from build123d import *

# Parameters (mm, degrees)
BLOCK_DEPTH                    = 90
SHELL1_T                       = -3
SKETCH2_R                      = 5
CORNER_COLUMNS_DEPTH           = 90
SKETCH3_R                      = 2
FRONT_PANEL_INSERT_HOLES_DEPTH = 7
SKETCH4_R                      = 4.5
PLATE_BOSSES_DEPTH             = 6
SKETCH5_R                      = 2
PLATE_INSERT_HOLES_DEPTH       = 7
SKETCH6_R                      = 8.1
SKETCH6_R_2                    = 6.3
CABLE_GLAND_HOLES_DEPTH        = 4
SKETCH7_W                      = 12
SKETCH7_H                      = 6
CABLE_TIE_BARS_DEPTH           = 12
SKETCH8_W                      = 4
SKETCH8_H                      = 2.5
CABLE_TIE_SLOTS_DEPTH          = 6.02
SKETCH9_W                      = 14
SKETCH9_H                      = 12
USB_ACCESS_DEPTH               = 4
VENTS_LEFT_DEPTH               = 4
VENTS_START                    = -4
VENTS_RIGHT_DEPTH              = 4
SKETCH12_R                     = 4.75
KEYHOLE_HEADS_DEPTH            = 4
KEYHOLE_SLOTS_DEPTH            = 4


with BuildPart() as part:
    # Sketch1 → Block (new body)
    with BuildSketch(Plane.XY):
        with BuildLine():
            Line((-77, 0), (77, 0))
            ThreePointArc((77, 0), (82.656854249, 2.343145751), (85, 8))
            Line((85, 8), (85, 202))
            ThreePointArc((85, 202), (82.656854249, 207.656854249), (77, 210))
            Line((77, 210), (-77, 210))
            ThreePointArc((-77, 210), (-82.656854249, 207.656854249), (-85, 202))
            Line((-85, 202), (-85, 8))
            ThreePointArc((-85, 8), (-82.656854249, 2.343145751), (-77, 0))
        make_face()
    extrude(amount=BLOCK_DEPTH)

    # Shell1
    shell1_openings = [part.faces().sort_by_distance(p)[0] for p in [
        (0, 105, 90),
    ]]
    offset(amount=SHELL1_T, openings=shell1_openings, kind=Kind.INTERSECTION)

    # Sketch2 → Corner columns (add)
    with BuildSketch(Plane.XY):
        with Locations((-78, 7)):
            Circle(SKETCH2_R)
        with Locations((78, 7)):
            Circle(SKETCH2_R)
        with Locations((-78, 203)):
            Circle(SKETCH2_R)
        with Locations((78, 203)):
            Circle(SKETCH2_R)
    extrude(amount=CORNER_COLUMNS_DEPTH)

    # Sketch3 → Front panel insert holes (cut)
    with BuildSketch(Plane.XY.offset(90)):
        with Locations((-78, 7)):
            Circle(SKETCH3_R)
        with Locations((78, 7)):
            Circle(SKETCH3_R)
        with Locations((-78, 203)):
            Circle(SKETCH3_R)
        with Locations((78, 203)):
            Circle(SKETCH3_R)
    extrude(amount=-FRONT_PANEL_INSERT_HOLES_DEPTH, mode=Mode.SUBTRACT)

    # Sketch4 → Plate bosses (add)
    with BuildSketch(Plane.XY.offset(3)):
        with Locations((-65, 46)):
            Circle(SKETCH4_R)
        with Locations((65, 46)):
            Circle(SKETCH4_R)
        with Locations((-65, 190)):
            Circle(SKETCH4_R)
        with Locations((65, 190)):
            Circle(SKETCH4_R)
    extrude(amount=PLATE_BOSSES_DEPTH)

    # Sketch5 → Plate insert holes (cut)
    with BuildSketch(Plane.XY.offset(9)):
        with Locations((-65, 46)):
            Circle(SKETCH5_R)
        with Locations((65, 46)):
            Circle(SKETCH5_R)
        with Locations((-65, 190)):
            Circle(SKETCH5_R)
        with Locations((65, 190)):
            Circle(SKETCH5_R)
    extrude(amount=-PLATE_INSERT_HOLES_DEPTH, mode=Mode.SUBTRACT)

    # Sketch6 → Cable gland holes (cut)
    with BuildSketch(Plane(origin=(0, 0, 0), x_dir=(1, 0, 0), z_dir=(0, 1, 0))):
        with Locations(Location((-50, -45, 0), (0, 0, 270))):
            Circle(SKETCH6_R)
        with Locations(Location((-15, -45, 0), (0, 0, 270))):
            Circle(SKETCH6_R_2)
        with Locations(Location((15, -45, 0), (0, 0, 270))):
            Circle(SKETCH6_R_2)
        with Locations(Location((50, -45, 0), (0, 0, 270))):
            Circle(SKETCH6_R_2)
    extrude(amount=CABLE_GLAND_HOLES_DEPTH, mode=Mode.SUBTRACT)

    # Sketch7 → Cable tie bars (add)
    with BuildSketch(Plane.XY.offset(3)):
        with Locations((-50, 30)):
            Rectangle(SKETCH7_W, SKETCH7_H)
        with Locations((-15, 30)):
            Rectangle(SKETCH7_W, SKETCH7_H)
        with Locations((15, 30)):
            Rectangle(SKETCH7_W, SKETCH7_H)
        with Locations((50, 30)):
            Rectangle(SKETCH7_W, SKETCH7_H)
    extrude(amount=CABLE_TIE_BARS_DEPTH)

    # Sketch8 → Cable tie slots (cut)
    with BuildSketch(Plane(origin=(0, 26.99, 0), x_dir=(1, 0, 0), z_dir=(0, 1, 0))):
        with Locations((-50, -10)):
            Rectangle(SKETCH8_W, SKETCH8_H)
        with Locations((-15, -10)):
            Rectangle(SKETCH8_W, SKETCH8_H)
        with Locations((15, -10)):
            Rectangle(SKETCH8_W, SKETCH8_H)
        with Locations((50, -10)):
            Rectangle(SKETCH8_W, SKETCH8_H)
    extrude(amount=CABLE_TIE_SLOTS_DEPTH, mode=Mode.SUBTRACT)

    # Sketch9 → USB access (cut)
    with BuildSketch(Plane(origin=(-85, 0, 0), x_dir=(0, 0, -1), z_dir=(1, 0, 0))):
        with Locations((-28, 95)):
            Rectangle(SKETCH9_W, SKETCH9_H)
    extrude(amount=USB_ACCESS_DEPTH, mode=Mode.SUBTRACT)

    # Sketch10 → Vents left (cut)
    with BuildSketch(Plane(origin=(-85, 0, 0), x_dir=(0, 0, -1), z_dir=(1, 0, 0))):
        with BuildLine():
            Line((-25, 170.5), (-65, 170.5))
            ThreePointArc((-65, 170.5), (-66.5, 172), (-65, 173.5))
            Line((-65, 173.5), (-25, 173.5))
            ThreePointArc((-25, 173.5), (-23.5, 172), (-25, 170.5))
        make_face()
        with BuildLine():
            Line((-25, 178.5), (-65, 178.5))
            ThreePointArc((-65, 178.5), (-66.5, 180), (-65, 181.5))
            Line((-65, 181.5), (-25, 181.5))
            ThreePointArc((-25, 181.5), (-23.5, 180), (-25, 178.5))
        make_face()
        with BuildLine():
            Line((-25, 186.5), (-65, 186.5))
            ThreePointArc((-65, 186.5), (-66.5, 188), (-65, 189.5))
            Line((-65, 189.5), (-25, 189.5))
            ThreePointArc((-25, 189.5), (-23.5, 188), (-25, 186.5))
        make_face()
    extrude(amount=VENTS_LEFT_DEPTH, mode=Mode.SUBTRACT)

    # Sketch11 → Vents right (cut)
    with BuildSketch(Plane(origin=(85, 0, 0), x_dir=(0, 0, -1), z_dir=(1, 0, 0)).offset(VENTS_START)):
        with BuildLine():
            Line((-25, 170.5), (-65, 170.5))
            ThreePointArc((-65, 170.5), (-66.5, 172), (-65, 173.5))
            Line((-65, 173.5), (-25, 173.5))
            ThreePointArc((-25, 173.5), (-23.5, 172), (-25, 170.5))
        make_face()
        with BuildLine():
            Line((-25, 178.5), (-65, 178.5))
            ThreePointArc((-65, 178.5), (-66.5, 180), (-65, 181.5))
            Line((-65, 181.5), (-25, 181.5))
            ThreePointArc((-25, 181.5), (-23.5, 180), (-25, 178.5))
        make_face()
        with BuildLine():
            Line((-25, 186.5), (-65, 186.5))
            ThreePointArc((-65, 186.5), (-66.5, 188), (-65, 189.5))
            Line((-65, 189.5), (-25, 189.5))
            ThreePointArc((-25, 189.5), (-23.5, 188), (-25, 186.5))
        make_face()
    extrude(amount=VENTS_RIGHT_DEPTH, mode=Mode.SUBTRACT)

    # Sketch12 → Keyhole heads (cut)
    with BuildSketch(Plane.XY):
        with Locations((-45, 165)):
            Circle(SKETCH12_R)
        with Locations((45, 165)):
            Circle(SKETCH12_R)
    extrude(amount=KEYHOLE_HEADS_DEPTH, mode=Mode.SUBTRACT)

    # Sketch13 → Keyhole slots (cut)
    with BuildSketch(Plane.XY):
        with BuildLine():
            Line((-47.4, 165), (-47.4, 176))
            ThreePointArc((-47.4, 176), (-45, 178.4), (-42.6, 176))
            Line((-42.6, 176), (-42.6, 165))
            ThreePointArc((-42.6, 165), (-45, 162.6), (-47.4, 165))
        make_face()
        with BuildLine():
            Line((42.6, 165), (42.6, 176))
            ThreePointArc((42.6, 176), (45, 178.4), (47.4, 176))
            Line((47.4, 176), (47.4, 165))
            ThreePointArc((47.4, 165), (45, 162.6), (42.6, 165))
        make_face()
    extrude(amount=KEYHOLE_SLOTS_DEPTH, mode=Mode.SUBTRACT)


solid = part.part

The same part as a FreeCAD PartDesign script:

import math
import FreeCAD as App
import Part
import Sketcher
from FreeCAD import Vector


def faces_at(feature, points):
    """Names of the faces that lie closest to the given points."""
    faces = feature.Shape.Faces
    near = lambda p: min(range(len(faces)), key=lambda i: faces[i].distToShape(Part.Vertex(*p))[0])
    return sorted({f"Face{near(p) + 1}" for p in points})

doc = App.newDocument("Part")
body = doc.addObject("PartDesign::Body", "Body")

sketch1 = body.newObject("Sketcher::SketchObject", "Sketch")
sketch1.AttachmentSupport = (doc.getObject("XY_Plane"), [""])
sketch1.MapMode = "FlatFace"
sketch1.addGeometry([
    Part.LineSegment(Vector(-77, 0, 0), Vector(77, 0, 0)),
    Part.ArcOfCircle(Part.Circle(Vector(77, 8, 0), Vector(0, 0, 1), 8), math.radians(-90), math.radians(0)),
    Part.LineSegment(Vector(85, 8, 0), Vector(85, 202, 0)),
    Part.ArcOfCircle(Part.Circle(Vector(77, 202, 0), Vector(0, 0, 1), 8), math.radians(0), math.radians(90)),
    Part.LineSegment(Vector(77, 210, 0), Vector(-77, 210, 0)),
    Part.ArcOfCircle(Part.Circle(Vector(-77, 202, 0), Vector(0, 0, 1), 8), math.radians(90), math.radians(180)),
    Part.LineSegment(Vector(-85, 202, 0), Vector(-85, 8, 0)),
    Part.ArcOfCircle(Part.Circle(Vector(-77, 8, 0), Vector(0, 0, 1), 8), math.radians(-180), math.radians(-90)),
], False)
sketch1.addConstraint([
    Sketcher.Constraint("Tangent", 0, 2, 1, 1),
    Sketcher.Constraint("Tangent", 1, 2, 2, 1),
    Sketcher.Constraint("Tangent", 2, 2, 3, 1),
    Sketcher.Constraint("Tangent", 3, 2, 4, 1),
    Sketcher.Constraint("Tangent", 4, 2, 5, 1),
    Sketcher.Constraint("Tangent", 5, 2, 6, 1),
    Sketcher.Constraint("Tangent", 6, 2, 7, 1),
    Sketcher.Constraint("Tangent", 7, 2, 0, 1),
    Sketcher.Constraint("Horizontal", 0),
    Sketcher.Constraint("Vertical", 2),
    Sketcher.Constraint("Horizontal", 4),
    Sketcher.Constraint("Vertical", 6),
    Sketcher.Constraint("Equal", 1, 3),
    Sketcher.Constraint("Equal", 3, 5),
    Sketcher.Constraint("Equal", 5, 7),
    Sketcher.Constraint("Symmetric", 0, 2, 7, 2, -1, 1),
    Sketcher.Constraint("Radius", 1, 8.0),
    Sketcher.Constraint("DistanceX", 0, 1, 0, 2, 154.0),
    Sketcher.Constraint("DistanceY", 2, 1, 2, 2, 194.0),
])
pad1 = body.newObject("PartDesign::Pad", "Pad")
pad1.Profile = sketch1
pad1.Length = 90
doc.recompute()

thickness = body.newObject("PartDesign::Thickness", "Thickness")
thickness.Base = (pad1, faces_at(pad1, [(0, 105, 90)]))
thickness.Value = 3
thickness.Reversed = True
thickness.Join = "Intersection"

sketch2 = body.newObject("Sketcher::SketchObject", "Sketch001")
sketch2.AttachmentSupport = (doc.getObject("XY_Plane"), [""])
sketch2.MapMode = "FlatFace"
sketch2.addGeometry([
    Part.Circle(Vector(-78, 7, 0), Vector(0, 0, 1), 5),
    Part.Circle(Vector(78, 7, 0), Vector(0, 0, 1), 5),
    Part.Circle(Vector(-78, 203, 0), Vector(0, 0, 1), 5),
    Part.Circle(Vector(78, 203, 0), Vector(0, 0, 1), 5),
], False)
sketch2.addConstraint([
    Sketcher.Constraint("Equal", 0, 1),
    Sketcher.Constraint("Equal", 1, 2),
    Sketcher.Constraint("Equal", 2, 3),
    Sketcher.Constraint("Symmetric", 0, 3, 1, 3, -2),
    Sketcher.Constraint("Symmetric", 2, 3, 3, 3, -2),
    Sketcher.Constraint("Vertical", 0, 3, 2, 3),
    Sketcher.Constraint("Diameter", 0, 10.0),
    Sketcher.Constraint("DistanceX", 0, 3, -1, 1, 78.0),
    Sketcher.Constraint("DistanceY", -1, 1, 0, 3, 7.0),
    Sketcher.Constraint("DistanceY", -1, 1, 2, 3, 203.0),
])
pad2 = body.newObject("PartDesign::Pad", "Pad001")
pad2.Profile = sketch2
pad2.Length = 90

sketch3 = body.newObject("Sketcher::SketchObject", "Sketch002")
sketch3.AttachmentSupport = (doc.getObject("XY_Plane"), [""])
sketch3.MapMode = "FlatFace"
sketch3.AttachmentOffset = App.Placement(Vector(0, 0, 90), App.Rotation())
sketch3.addGeometry([
    Part.Circle(Vector(-78, 7, 0), Vector(0, 0, 1), 2),
    Part.Circle(Vector(78, 7, 0), Vector(0, 0, 1), 2),
    Part.Circle(Vector(-78, 203, 0), Vector(0, 0, 1), 2),
    Part.Circle(Vector(78, 203, 0), Vector(0, 0, 1), 2),
], False)
sketch3.addConstraint([
    Sketcher.Constraint("Equal", 0, 1),
    Sketcher.Constraint("Equal", 1, 2),
    Sketcher.Constraint("Equal", 2, 3),
    Sketcher.Constraint("Symmetric", 0, 3, 1, 3, -2),
    Sketcher.Constraint("Symmetric", 2, 3, 3, 3, -2),
    Sketcher.Constraint("Vertical", 0, 3, 2, 3),
    Sketcher.Constraint("Diameter", 0, 4.0),
    Sketcher.Constraint("DistanceX", 0, 3, -1, 1, 78.0),
    Sketcher.Constraint("DistanceY", -1, 1, 0, 3, 7.0),
    Sketcher.Constraint("DistanceY", -1, 1, 2, 3, 203.0),
])
pocket1 = body.newObject("PartDesign::Pocket", "Pocket")
pocket1.Profile = sketch3
pocket1.Length = 7

sketch4 = body.newObject("Sketcher::SketchObject", "Sketch003")
sketch4.AttachmentSupport = (doc.getObject("XY_Plane"), [""])
sketch4.MapMode = "FlatFace"
sketch4.AttachmentOffset = App.Placement(Vector(0, 0, 3), App.Rotation())
sketch4.addGeometry([
    Part.Circle(Vector(-65, 46, 0), Vector(0, 0, 1), 4.5),
    Part.Circle(Vector(65, 46, 0), Vector(0, 0, 1), 4.5),
    Part.Circle(Vector(-65, 190, 0), Vector(0, 0, 1), 4.5),
    Part.Circle(Vector(65, 190, 0), Vector(0, 0, 1), 4.5),
], False)
sketch4.addConstraint([
    Sketcher.Constraint("Equal", 0, 1),
    Sketcher.Constraint("Equal", 1, 2),
    Sketcher.Constraint("Equal", 2, 3),
    Sketcher.Constraint("Symmetric", 0, 3, 1, 3, -2),
    Sketcher.Constraint("Symmetric", 2, 3, 3, 3, -2),
    Sketcher.Constraint("Vertical", 0, 3, 2, 3),
    Sketcher.Constraint("Diameter", 0, 9.0),
    Sketcher.Constraint("DistanceX", 0, 3, -1, 1, 65.0),
    Sketcher.Constraint("DistanceY", -1, 1, 0, 3, 46.0),
    Sketcher.Constraint("DistanceY", -1, 1, 2, 3, 190.0),
])
pad3 = body.newObject("PartDesign::Pad", "Pad002")
pad3.Profile = sketch4
pad3.Length = 6

sketch5 = body.newObject("Sketcher::SketchObject", "Sketch004")
sketch5.AttachmentSupport = (doc.getObject("XY_Plane"), [""])
sketch5.MapMode = "FlatFace"
sketch5.AttachmentOffset = App.Placement(Vector(0, 0, 9), App.Rotation())
sketch5.addGeometry([
    Part.Circle(Vector(-65, 46, 0), Vector(0, 0, 1), 2),
    Part.Circle(Vector(65, 46, 0), Vector(0, 0, 1), 2),
    Part.Circle(Vector(-65, 190, 0), Vector(0, 0, 1), 2),
    Part.Circle(Vector(65, 190, 0), Vector(0, 0, 1), 2),
], False)
sketch5.addConstraint([
    Sketcher.Constraint("Equal", 0, 1),
    Sketcher.Constraint("Equal", 1, 2),
    Sketcher.Constraint("Equal", 2, 3),
    Sketcher.Constraint("Symmetric", 0, 3, 1, 3, -2),
    Sketcher.Constraint("Symmetric", 2, 3, 3, 3, -2),
    Sketcher.Constraint("Vertical", 0, 3, 2, 3),
    Sketcher.Constraint("Diameter", 0, 4.0),
    Sketcher.Constraint("DistanceX", 0, 3, -1, 1, 65.0),
    Sketcher.Constraint("DistanceY", -1, 1, 0, 3, 46.0),
    Sketcher.Constraint("DistanceY", -1, 1, 2, 3, 190.0),
])
pocket2 = body.newObject("PartDesign::Pocket", "Pocket001")
pocket2.Profile = sketch5
pocket2.Length = 7

sketch6 = body.newObject("Sketcher::SketchObject", "Sketch005")
sketch6.AttachmentSupport = (doc.getObject("XZ_Plane"), [""])
sketch6.MapMode = "FlatFace"
sketch6.addGeometry([
    Part.Circle(Vector(-50, 45, 0), Vector(0, 0, 1), 8),
    Part.Circle(Vector(-15, 45, 0), Vector(0, 0, 1), 6),
    Part.Circle(Vector(15, 45, 0), Vector(0, 0, 1), 6),
    Part.Circle(Vector(50, 45, 0), Vector(0, 0, 1), 6),
], False)
sketch6.addConstraint([
    Sketcher.Constraint("Equal", 1, 2),
    Sketcher.Constraint("Equal", 2, 3),
    Sketcher.Constraint("Symmetric", 1, 3, 2, 3, -2),
    Sketcher.Constraint("Symmetric", 0, 3, 3, 3, -2),
    Sketcher.Constraint("Horizontal", 0, 3, 1, 3),
    Sketcher.Constraint("Diameter", 0, 16.2),
    Sketcher.Constraint("Diameter", 1, 12.6),
    Sketcher.Constraint("DistanceX", 0, 3, -1, 1, 50.0),
    Sketcher.Constraint("DistanceY", -1, 1, 0, 3, 45.0),
    Sketcher.Constraint("DistanceX", 1, 3, -1, 1, 15.0),
])
pocket3 = body.newObject("PartDesign::Pocket", "Pocket002")
pocket3.Profile = sketch6
pocket3.Length = 4

sketch7 = body.newObject("Sketcher::SketchObject", "Sketch006")
sketch7.AttachmentSupport = (doc.getObject("XY_Plane"), [""])
sketch7.MapMode = "FlatFace"
sketch7.AttachmentOffset = App.Placement(Vector(0, 0, 3), App.Rotation())
sketch7.addGeometry([
    Part.LineSegment(Vector(-56, 33, 0), Vector(-56, 27, 0)),
    Part.LineSegment(Vector(-56, 27, 0), Vector(-44, 27, 0)),
    Part.LineSegment(Vector(-44, 27, 0), Vector(-44, 33, 0)),
    Part.LineSegment(Vector(-44, 33, 0), Vector(-56, 33, 0)),
    Part.LineSegment(Vector(-21, 33, 0), Vector(-21, 27, 0)),
    Part.LineSegment(Vector(-21, 27, 0), Vector(-9, 27, 0)),
    Part.LineSegment(Vector(-9, 27, 0), Vector(-9, 33, 0)),
    Part.LineSegment(Vector(-9, 33, 0), Vector(-21, 33, 0)),
    Part.LineSegment(Vector(9, 33, 0), Vector(9, 27, 0)),
    Part.LineSegment(Vector(9, 27, 0), Vector(21, 27, 0)),
    Part.LineSegment(Vector(21, 27, 0), Vector(21, 33, 0)),
    Part.LineSegment(Vector(21, 33, 0), Vector(9, 33, 0)),
    Part.LineSegment(Vector(44, 33, 0), Vector(44, 27, 0)),
    Part.LineSegment(Vector(44, 27, 0), Vector(56, 27, 0)),
    Part.LineSegment(Vector(56, 27, 0), Vector(56, 33, 0)),
    Part.LineSegment(Vector(56, 33, 0), Vector(44, 33, 0)),
], False)
sketch7.addConstraint([
    Sketcher.Constraint("Coincident", 0, 2, 1, 1),
    Sketcher.Constraint("Coincident", 1, 2, 2, 1),
    Sketcher.Constraint("Coincident", 2, 2, 3, 1),
    Sketcher.Constraint("Coincident", 3, 2, 0, 1),
    Sketcher.Constraint("Coincident", 4, 2, 5, 1),
    Sketcher.Constraint("Coincident", 5, 2, 6, 1),
    Sketcher.Constraint("Coincident", 6, 2, 7, 1),
    Sketcher.Constraint("Coincident", 7, 2, 4, 1),
    Sketcher.Constraint("Coincident", 8, 2, 9, 1),
    Sketcher.Constraint("Coincident", 9, 2, 10, 1),
    Sketcher.Constraint("Coincident", 10, 2, 11, 1),
    Sketcher.Constraint("Coincident", 11, 2, 8, 1),
    Sketcher.Constraint("Coincident", 12, 2, 13, 1),
    Sketcher.Constraint("Coincident", 13, 2, 14, 1),
    Sketcher.Constraint("Coincident", 14, 2, 15, 1),
    Sketcher.Constraint("Coincident", 15, 2, 12, 1),
    Sketcher.Constraint("Vertical", 0),
    Sketcher.Constraint("Horizontal", 1),
    Sketcher.Constraint("Vertical", 2),
    Sketcher.Constraint("Horizontal", 3),
    Sketcher.Constraint("Vertical", 4),
    Sketcher.Constraint("Horizontal", 5),
    Sketcher.Constraint("Vertical", 6),
    Sketcher.Constraint("Horizontal", 7),
    Sketcher.Constraint("Vertical", 8),
    Sketcher.Constraint("Horizontal", 9),
    Sketcher.Constraint("Vertical", 10),
    Sketcher.Constraint("Horizontal", 11),
    Sketcher.Constraint("Vertical", 12),
    Sketcher.Constraint("Horizontal", 13),
    Sketcher.Constraint("Vertical", 14),
    Sketcher.Constraint("Horizontal", 15),
    Sketcher.Constraint("Symmetric", 5, 2, 8, 2, -2),
    Sketcher.Constraint("Symmetric", 7, 2, 10, 2, -2),
    Sketcher.Constraint("Symmetric", 1, 2, 12, 2, -2),
    Sketcher.Constraint("Symmetric", 3, 2, 14, 2, -2),
    Sketcher.Constraint("Horizontal", 1, 2, 4, 2),
    Sketcher.Constraint("Horizontal", 3, 2, 6, 2),
    Sketcher.Constraint("Equal", 3, 5),
    Sketcher.Constraint("DistanceX", 1, 1, 1, 2, 12.0),
    Sketcher.Constraint("DistanceY", 0, 2, 0, 1, 6.0),
    Sketcher.Constraint("DistanceX", 0, 2, -1, 1, 56.0),
    Sketcher.Constraint("DistanceY", -1, 1, 0, 2, 27.0),
    Sketcher.Constraint("DistanceX", 4, 2, -1, 1, 21.0),
])
pad4 = body.newObject("PartDesign::Pad", "Pad003")
pad4.Profile = sketch7
pad4.Length = 12

sketch8 = body.newObject("Sketcher::SketchObject", "Sketch007")
sketch8.AttachmentSupport = (doc.getObject("XZ_Plane"), [""])
sketch8.MapMode = "FlatFace"
sketch8.AttachmentOffset = App.Placement(Vector(0, 0, -26.99), App.Rotation())
sketch8.addGeometry([
    Part.LineSegment(Vector(-52, 8.8, 0), Vector(-52, 11.2, 0)),
    Part.LineSegment(Vector(-52, 11.2, 0), Vector(-48, 11.2, 0)),
    Part.LineSegment(Vector(-48, 11.2, 0), Vector(-48, 8.8, 0)),
    Part.LineSegment(Vector(-48, 8.8, 0), Vector(-52, 8.8, 0)),
    Part.LineSegment(Vector(-17, 8.8, 0), Vector(-17, 11.2, 0)),
    Part.LineSegment(Vector(-17, 11.2, 0), Vector(-13, 11.2, 0)),
    Part.LineSegment(Vector(-13, 11.2, 0), Vector(-13, 8.8, 0)),
    Part.LineSegment(Vector(-13, 8.8, 0), Vector(-17, 8.8, 0)),
    Part.LineSegment(Vector(13, 8.8, 0), Vector(13, 11.2, 0)),
    Part.LineSegment(Vector(13, 11.2, 0), Vector(17, 11.2, 0)),
    Part.LineSegment(Vector(17, 11.2, 0), Vector(17, 8.8, 0)),
    Part.LineSegment(Vector(17, 8.8, 0), Vector(13, 8.8, 0)),
    Part.LineSegment(Vector(48, 8.8, 0), Vector(48, 11.2, 0)),
    Part.LineSegment(Vector(48, 11.2, 0), Vector(52, 11.2, 0)),
    Part.LineSegment(Vector(52, 11.2, 0), Vector(52, 8.8, 0)),
    Part.LineSegment(Vector(52, 8.8, 0), Vector(48, 8.8, 0)),
], False)
sketch8.addConstraint([
    Sketcher.Constraint("Coincident", 0, 2, 1, 1),
    Sketcher.Constraint("Coincident", 1, 2, 2, 1),
    Sketcher.Constraint("Coincident", 2, 2, 3, 1),
    Sketcher.Constraint("Coincident", 3, 2, 0, 1),
    Sketcher.Constraint("Coincident", 4, 2, 5, 1),
    Sketcher.Constraint("Coincident", 5, 2, 6, 1),
    Sketcher.Constraint("Coincident", 6, 2, 7, 1),
    Sketcher.Constraint("Coincident", 7, 2, 4, 1),
    Sketcher.Constraint("Coincident", 8, 2, 9, 1),
    Sketcher.Constraint("Coincident", 9, 2, 10, 1),
    Sketcher.Constraint("Coincident", 10, 2, 11, 1),
    Sketcher.Constraint("Coincident", 11, 2, 8, 1),
    Sketcher.Constraint("Coincident", 12, 2, 13, 1),
    Sketcher.Constraint("Coincident", 13, 2, 14, 1),
    Sketcher.Constraint("Coincident", 14, 2, 15, 1),
    Sketcher.Constraint("Coincident", 15, 2, 12, 1),
    Sketcher.Constraint("Vertical", 0),
    Sketcher.Constraint("Horizontal", 1),
    Sketcher.Constraint("Vertical", 2),
    Sketcher.Constraint("Horizontal", 3),
    Sketcher.Constraint("Vertical", 4),
    Sketcher.Constraint("Horizontal", 5),
    Sketcher.Constraint("Vertical", 6),
    Sketcher.Constraint("Horizontal", 7),
    Sketcher.Constraint("Vertical", 8),
    Sketcher.Constraint("Horizontal", 9),
    Sketcher.Constraint("Vertical", 10),
    Sketcher.Constraint("Horizontal", 11),
    Sketcher.Constraint("Vertical", 12),
    Sketcher.Constraint("Horizontal", 13),
    Sketcher.Constraint("Vertical", 14),
    Sketcher.Constraint("Horizontal", 15),
    Sketcher.Constraint("Symmetric", 5, 2, 8, 2, -2),
    Sketcher.Constraint("Symmetric", 7, 2, 10, 2, -2),
    Sketcher.Constraint("Symmetric", 1, 2, 12, 2, -2),
    Sketcher.Constraint("Symmetric", 3, 2, 14, 2, -2),
    Sketcher.Constraint("Horizontal", 1, 2, 4, 2),
    Sketcher.Constraint("Horizontal", 3, 2, 6, 2),
    Sketcher.Constraint("Equal", 3, 5),
    Sketcher.Constraint("DistanceX", 1, 1, 1, 2, 4.0),
    Sketcher.Constraint("DistanceY", 0, 1, 0, 2, 2.5),
    Sketcher.Constraint("DistanceX", 0, 2, -1, 1, 52.0),
    Sketcher.Constraint("DistanceX", 4, 2, -1, 1, 17.0),
    Sketcher.Constraint("DistanceY", -1, 1, 0, 2, 11.25),
])
pocket4 = body.newObject("PartDesign::Pocket", "Pocket003")
pocket4.Profile = sketch8
pocket4.Length = 6.02

sketch9 = body.newObject("Sketcher::SketchObject", "Sketch008")
sketch9.AttachmentSupport = (doc.getObject("YZ_Plane"), [""])
sketch9.MapMode = "FlatFace"
sketch9.AttachmentOffset = App.Placement(Vector(0, 0, -85), App.Rotation())
sketch9.addGeometry([
    Part.LineSegment(Vector(101, 35, 0), Vector(89, 35, 0)),
    Part.LineSegment(Vector(89, 35, 0), Vector(89, 21, 0)),
    Part.LineSegment(Vector(89, 21, 0), Vector(101, 21, 0)),
    Part.LineSegment(Vector(101, 21, 0), Vector(101, 35, 0)),
], False)
sketch9.addConstraint([
    Sketcher.Constraint("Coincident", 0, 2, 1, 1),
    Sketcher.Constraint("Coincident", 1, 2, 2, 1),
    Sketcher.Constraint("Coincident", 2, 2, 3, 1),
    Sketcher.Constraint("Coincident", 3, 2, 0, 1),
    Sketcher.Constraint("Horizontal", 0),
    Sketcher.Constraint("Vertical", 1),
    Sketcher.Constraint("Horizontal", 2),
    Sketcher.Constraint("Vertical", 3),
    Sketcher.Constraint("DistanceX", 0, 2, 0, 1, 12.0),
    Sketcher.Constraint("DistanceY", 1, 2, 1, 1, 14.0),
    Sketcher.Constraint("DistanceX", -1, 1, 0, 2, 89.0),
    Sketcher.Constraint("DistanceY", -1, 1, 0, 2, 35.0),
])
pocket5 = body.newObject("PartDesign::Pocket", "Pocket004")
pocket5.Profile = sketch9
pocket5.Length = 4
pocket5.Reversed = True

sketch10 = body.newObject("Sketcher::SketchObject", "Sketch009")
sketch10.AttachmentSupport = (doc.getObject("YZ_Plane"), [""])
sketch10.MapMode = "FlatFace"
sketch10.AttachmentOffset = App.Placement(Vector(0, 0, -85), App.Rotation())
sketch10.addGeometry([
    Part.LineSegment(Vector(170.5, 65, 0), Vector(170.5, 25, 0)),
    Part.ArcOfCircle(Part.Circle(Vector(172, 25, 0), Vector(0, 0, 1), 1.5), math.radians(180), math.radians(360)),
    Part.LineSegment(Vector(173.5, 25, 0), Vector(173.5, 65, 0)),
    Part.ArcOfCircle(Part.Circle(Vector(172, 65, 0), Vector(0, 0, 1), 1.5), math.radians(0), math.radians(180)),
    Part.LineSegment(Vector(178.5, 65, 0), Vector(178.5, 25, 0)),
    Part.ArcOfCircle(Part.Circle(Vector(180, 25, 0), Vector(0, 0, 1), 1.5), math.radians(180), math.radians(360)),
    Part.LineSegment(Vector(181.5, 25, 0), Vector(181.5, 65, 0)),
    Part.ArcOfCircle(Part.Circle(Vector(180, 65, 0), Vector(0, 0, 1), 1.5), math.radians(0), math.radians(180)),
    Part.LineSegment(Vector(186.5, 65, 0), Vector(186.5, 25, 0)),
    Part.ArcOfCircle(Part.Circle(Vector(188, 25, 0), Vector(0, 0, 1), 1.5), math.radians(180), math.radians(360)),
    Part.LineSegment(Vector(189.5, 25, 0), Vector(189.5, 65, 0)),
    Part.ArcOfCircle(Part.Circle(Vector(188, 65, 0), Vector(0, 0, 1), 1.5), math.radians(0), math.radians(180)),
], False)
sketch10.addConstraint([
    Sketcher.Constraint("Tangent", 0, 2, 1, 1),
    Sketcher.Constraint("Tangent", 1, 2, 2, 1),
    Sketcher.Constraint("Tangent", 2, 2, 3, 1),
    Sketcher.Constraint("Tangent", 3, 2, 0, 1),
    Sketcher.Constraint("Tangent", 4, 2, 5, 1),
    Sketcher.Constraint("Tangent", 5, 2, 6, 1),
    Sketcher.Constraint("Tangent", 6, 2, 7, 1),
    Sketcher.Constraint("Tangent", 7, 2, 4, 1),
    Sketcher.Constraint("Tangent", 8, 2, 9, 1),
    Sketcher.Constraint("Tangent", 9, 2, 10, 1),
    Sketcher.Constraint("Tangent", 10, 2, 11, 1),
    Sketcher.Constraint("Tangent", 11, 2, 8, 1),
    Sketcher.Constraint("Vertical", 0),
    Sketcher.Constraint("Vertical", 2),
    Sketcher.Constraint("Vertical", 4),
    Sketcher.Constraint("Vertical", 6),
    Sketcher.Constraint("Vertical", 8),
    Sketcher.Constraint("Vertical", 10),
    Sketcher.Constraint("Equal", 3, 5),
    Sketcher.Constraint("Equal", 7, 9),
    Sketcher.Constraint("Horizontal", 1, 3, 5, 3),
    Sketcher.Constraint("Horizontal", 3, 3, 7, 3),
    Sketcher.Constraint("Horizontal", 5, 3, 9, 3),
    Sketcher.Constraint("Horizontal", 7, 3, 11, 3),
    Sketcher.Constraint("Radius", 1, 1.5),
    Sketcher.Constraint("DistanceY", 0, 2, 0, 1, 40.0),
    Sketcher.Constraint("DistanceX", -1, 1, 1, 3, 172.0),
    Sketcher.Constraint("DistanceY", -1, 1, 1, 3, 25.0),
    Sketcher.Constraint("DistanceX", -1, 1, 5, 3, 180.0),
    Sketcher.Constraint("DistanceX", -1, 1, 9, 3, 188.0),
])
pocket6 = body.newObject("PartDesign::Pocket", "Pocket005")
pocket6.Profile = sketch10
pocket6.Length = 4
pocket6.Reversed = True

sketch11 = body.newObject("Sketcher::SketchObject", "Sketch010")
sketch11.AttachmentSupport = (doc.getObject("YZ_Plane"), [""])
sketch11.MapMode = "FlatFace"
sketch11.AttachmentOffset = App.Placement(Vector(0, 0, 81), App.Rotation())
sketch11.addGeometry([
    Part.LineSegment(Vector(170.5, 65, 0), Vector(170.5, 25, 0)),
    Part.ArcOfCircle(Part.Circle(Vector(172, 25, 0), Vector(0, 0, 1), 1.5), math.radians(180), math.radians(360)),
    Part.LineSegment(Vector(173.5, 25, 0), Vector(173.5, 65, 0)),
    Part.ArcOfCircle(Part.Circle(Vector(172, 65, 0), Vector(0, 0, 1), 1.5), math.radians(0), math.radians(180)),
    Part.LineSegment(Vector(178.5, 65, 0), Vector(178.5, 25, 0)),
    Part.ArcOfCircle(Part.Circle(Vector(180, 25, 0), Vector(0, 0, 1), 1.5), math.radians(180), math.radians(360)),
    Part.LineSegment(Vector(181.5, 25, 0), Vector(181.5, 65, 0)),
    Part.ArcOfCircle(Part.Circle(Vector(180, 65, 0), Vector(0, 0, 1), 1.5), math.radians(0), math.radians(180)),
    Part.LineSegment(Vector(186.5, 65, 0), Vector(186.5, 25, 0)),
    Part.ArcOfCircle(Part.Circle(Vector(188, 25, 0), Vector(0, 0, 1), 1.5), math.radians(180), math.radians(360)),
    Part.LineSegment(Vector(189.5, 25, 0), Vector(189.5, 65, 0)),
    Part.ArcOfCircle(Part.Circle(Vector(188, 65, 0), Vector(0, 0, 1), 1.5), math.radians(0), math.radians(180)),
], False)
sketch11.addConstraint([
    Sketcher.Constraint("Tangent", 0, 2, 1, 1),
    Sketcher.Constraint("Tangent", 1, 2, 2, 1),
    Sketcher.Constraint("Tangent", 2, 2, 3, 1),
    Sketcher.Constraint("Tangent", 3, 2, 0, 1),
    Sketcher.Constraint("Tangent", 4, 2, 5, 1),
    Sketcher.Constraint("Tangent", 5, 2, 6, 1),
    Sketcher.Constraint("Tangent", 6, 2, 7, 1),
    Sketcher.Constraint("Tangent", 7, 2, 4, 1),
    Sketcher.Constraint("Tangent", 8, 2, 9, 1),
    Sketcher.Constraint("Tangent", 9, 2, 10, 1),
    Sketcher.Constraint("Tangent", 10, 2, 11, 1),
    Sketcher.Constraint("Tangent", 11, 2, 8, 1),
    Sketcher.Constraint("Vertical", 0),
    Sketcher.Constraint("Vertical", 2),
    Sketcher.Constraint("Vertical", 4),
    Sketcher.Constraint("Vertical", 6),
    Sketcher.Constraint("Vertical", 8),
    Sketcher.Constraint("Vertical", 10),
    Sketcher.Constraint("Equal", 3, 5),
    Sketcher.Constraint("Equal", 7, 9),
    Sketcher.Constraint("Horizontal", 1, 3, 5, 3),
    Sketcher.Constraint("Horizontal", 3, 3, 7, 3),
    Sketcher.Constraint("Horizontal", 5, 3, 9, 3),
    Sketcher.Constraint("Horizontal", 7, 3, 11, 3),
    Sketcher.Constraint("Radius", 1, 1.5),
    Sketcher.Constraint("DistanceY", 0, 2, 0, 1, 40.0),
    Sketcher.Constraint("DistanceX", -1, 1, 1, 3, 172.0),
    Sketcher.Constraint("DistanceY", -1, 1, 1, 3, 25.0),
    Sketcher.Constraint("DistanceX", -1, 1, 5, 3, 180.0),
    Sketcher.Constraint("DistanceX", -1, 1, 9, 3, 188.0),
])
pocket7 = body.newObject("PartDesign::Pocket", "Pocket006")
pocket7.Profile = sketch11
pocket7.Length = 4
pocket7.Reversed = True

sketch12 = body.newObject("Sketcher::SketchObject", "Sketch011")
sketch12.AttachmentSupport = (doc.getObject("XY_Plane"), [""])
sketch12.MapMode = "FlatFace"
sketch12.addGeometry([
    Part.Circle(Vector(-45, 165, 0), Vector(0, 0, 1), 4.8),
    Part.Circle(Vector(45, 165, 0), Vector(0, 0, 1), 4.8),
], False)
sketch12.addConstraint([
    Sketcher.Constraint("Equal", 0, 1),
    Sketcher.Constraint("Symmetric", 0, 3, 1, 3, -2),
    Sketcher.Constraint("Diameter", 0, 9.5),
    Sketcher.Constraint("DistanceX", 0, 3, -1, 1, 45.0),
    Sketcher.Constraint("DistanceY", -1, 1, 0, 3, 165.0),
])
pocket8 = body.newObject("PartDesign::Pocket", "Pocket007")
pocket8.Profile = sketch12
pocket8.Length = 4
pocket8.Reversed = True

sketch13 = body.newObject("Sketcher::SketchObject", "Sketch012")
sketch13.AttachmentSupport = (doc.getObject("XY_Plane"), [""])
sketch13.MapMode = "FlatFace"
sketch13.addGeometry([
    Part.LineSegment(Vector(-47.4, 176, 0), Vector(-47.4, 165, 0)),
    Part.ArcOfCircle(Part.Circle(Vector(-45, 165, 0), Vector(0, 0, 1), 2.4), math.radians(180), math.radians(360)),
    Part.LineSegment(Vector(-42.6, 165, 0), Vector(-42.6, 176, 0)),
    Part.ArcOfCircle(Part.Circle(Vector(-45, 176, 0), Vector(0, 0, 1), 2.4), math.radians(0), math.radians(180)),
    Part.LineSegment(Vector(42.6, 176, 0), Vector(42.6, 165, 0)),
    Part.ArcOfCircle(Part.Circle(Vector(45, 165, 0), Vector(0, 0, 1), 2.4), math.radians(180), math.radians(360)),
    Part.LineSegment(Vector(47.4, 165, 0), Vector(47.4, 176, 0)),
    Part.ArcOfCircle(Part.Circle(Vector(45, 176, 0), Vector(0, 0, 1), 2.4), math.radians(0), math.radians(180)),
], False)
sketch13.addConstraint([
    Sketcher.Constraint("Tangent", 0, 2, 1, 1),
    Sketcher.Constraint("Tangent", 1, 2, 2, 1),
    Sketcher.Constraint("Tangent", 2, 2, 3, 1),
    Sketcher.Constraint("Tangent", 3, 2, 0, 1),
    Sketcher.Constraint("Tangent", 4, 2, 5, 1),
    Sketcher.Constraint("Tangent", 5, 2, 6, 1),
    Sketcher.Constraint("Tangent", 6, 2, 7, 1),
    Sketcher.Constraint("Tangent", 7, 2, 4, 1),
    Sketcher.Constraint("Vertical", 0),
    Sketcher.Constraint("Vertical", 2),
    Sketcher.Constraint("Vertical", 4),
    Sketcher.Constraint("Vertical", 6),
    Sketcher.Constraint("Equal", 3, 5),
    Sketcher.Constraint("Symmetric", 1, 3, 5, 3, -2),
    Sketcher.Constraint("Horizontal", 3, 3, 7, 3),
    Sketcher.Constraint("Radius", 1, 2.4),
    Sketcher.Constraint("DistanceY", 0, 2, 0, 1, 11.0),
    Sketcher.Constraint("DistanceX", 1, 3, -1, 1, 45.0),
    Sketcher.Constraint("DistanceY", -1, 1, 1, 3, 165.0),
])
pocket9 = body.newObject("PartDesign::Pocket", "Pocket008")
pocket9.Profile = sketch13
pocket9.Length = 4
pocket9.Reversed = True

doc.recompute()
